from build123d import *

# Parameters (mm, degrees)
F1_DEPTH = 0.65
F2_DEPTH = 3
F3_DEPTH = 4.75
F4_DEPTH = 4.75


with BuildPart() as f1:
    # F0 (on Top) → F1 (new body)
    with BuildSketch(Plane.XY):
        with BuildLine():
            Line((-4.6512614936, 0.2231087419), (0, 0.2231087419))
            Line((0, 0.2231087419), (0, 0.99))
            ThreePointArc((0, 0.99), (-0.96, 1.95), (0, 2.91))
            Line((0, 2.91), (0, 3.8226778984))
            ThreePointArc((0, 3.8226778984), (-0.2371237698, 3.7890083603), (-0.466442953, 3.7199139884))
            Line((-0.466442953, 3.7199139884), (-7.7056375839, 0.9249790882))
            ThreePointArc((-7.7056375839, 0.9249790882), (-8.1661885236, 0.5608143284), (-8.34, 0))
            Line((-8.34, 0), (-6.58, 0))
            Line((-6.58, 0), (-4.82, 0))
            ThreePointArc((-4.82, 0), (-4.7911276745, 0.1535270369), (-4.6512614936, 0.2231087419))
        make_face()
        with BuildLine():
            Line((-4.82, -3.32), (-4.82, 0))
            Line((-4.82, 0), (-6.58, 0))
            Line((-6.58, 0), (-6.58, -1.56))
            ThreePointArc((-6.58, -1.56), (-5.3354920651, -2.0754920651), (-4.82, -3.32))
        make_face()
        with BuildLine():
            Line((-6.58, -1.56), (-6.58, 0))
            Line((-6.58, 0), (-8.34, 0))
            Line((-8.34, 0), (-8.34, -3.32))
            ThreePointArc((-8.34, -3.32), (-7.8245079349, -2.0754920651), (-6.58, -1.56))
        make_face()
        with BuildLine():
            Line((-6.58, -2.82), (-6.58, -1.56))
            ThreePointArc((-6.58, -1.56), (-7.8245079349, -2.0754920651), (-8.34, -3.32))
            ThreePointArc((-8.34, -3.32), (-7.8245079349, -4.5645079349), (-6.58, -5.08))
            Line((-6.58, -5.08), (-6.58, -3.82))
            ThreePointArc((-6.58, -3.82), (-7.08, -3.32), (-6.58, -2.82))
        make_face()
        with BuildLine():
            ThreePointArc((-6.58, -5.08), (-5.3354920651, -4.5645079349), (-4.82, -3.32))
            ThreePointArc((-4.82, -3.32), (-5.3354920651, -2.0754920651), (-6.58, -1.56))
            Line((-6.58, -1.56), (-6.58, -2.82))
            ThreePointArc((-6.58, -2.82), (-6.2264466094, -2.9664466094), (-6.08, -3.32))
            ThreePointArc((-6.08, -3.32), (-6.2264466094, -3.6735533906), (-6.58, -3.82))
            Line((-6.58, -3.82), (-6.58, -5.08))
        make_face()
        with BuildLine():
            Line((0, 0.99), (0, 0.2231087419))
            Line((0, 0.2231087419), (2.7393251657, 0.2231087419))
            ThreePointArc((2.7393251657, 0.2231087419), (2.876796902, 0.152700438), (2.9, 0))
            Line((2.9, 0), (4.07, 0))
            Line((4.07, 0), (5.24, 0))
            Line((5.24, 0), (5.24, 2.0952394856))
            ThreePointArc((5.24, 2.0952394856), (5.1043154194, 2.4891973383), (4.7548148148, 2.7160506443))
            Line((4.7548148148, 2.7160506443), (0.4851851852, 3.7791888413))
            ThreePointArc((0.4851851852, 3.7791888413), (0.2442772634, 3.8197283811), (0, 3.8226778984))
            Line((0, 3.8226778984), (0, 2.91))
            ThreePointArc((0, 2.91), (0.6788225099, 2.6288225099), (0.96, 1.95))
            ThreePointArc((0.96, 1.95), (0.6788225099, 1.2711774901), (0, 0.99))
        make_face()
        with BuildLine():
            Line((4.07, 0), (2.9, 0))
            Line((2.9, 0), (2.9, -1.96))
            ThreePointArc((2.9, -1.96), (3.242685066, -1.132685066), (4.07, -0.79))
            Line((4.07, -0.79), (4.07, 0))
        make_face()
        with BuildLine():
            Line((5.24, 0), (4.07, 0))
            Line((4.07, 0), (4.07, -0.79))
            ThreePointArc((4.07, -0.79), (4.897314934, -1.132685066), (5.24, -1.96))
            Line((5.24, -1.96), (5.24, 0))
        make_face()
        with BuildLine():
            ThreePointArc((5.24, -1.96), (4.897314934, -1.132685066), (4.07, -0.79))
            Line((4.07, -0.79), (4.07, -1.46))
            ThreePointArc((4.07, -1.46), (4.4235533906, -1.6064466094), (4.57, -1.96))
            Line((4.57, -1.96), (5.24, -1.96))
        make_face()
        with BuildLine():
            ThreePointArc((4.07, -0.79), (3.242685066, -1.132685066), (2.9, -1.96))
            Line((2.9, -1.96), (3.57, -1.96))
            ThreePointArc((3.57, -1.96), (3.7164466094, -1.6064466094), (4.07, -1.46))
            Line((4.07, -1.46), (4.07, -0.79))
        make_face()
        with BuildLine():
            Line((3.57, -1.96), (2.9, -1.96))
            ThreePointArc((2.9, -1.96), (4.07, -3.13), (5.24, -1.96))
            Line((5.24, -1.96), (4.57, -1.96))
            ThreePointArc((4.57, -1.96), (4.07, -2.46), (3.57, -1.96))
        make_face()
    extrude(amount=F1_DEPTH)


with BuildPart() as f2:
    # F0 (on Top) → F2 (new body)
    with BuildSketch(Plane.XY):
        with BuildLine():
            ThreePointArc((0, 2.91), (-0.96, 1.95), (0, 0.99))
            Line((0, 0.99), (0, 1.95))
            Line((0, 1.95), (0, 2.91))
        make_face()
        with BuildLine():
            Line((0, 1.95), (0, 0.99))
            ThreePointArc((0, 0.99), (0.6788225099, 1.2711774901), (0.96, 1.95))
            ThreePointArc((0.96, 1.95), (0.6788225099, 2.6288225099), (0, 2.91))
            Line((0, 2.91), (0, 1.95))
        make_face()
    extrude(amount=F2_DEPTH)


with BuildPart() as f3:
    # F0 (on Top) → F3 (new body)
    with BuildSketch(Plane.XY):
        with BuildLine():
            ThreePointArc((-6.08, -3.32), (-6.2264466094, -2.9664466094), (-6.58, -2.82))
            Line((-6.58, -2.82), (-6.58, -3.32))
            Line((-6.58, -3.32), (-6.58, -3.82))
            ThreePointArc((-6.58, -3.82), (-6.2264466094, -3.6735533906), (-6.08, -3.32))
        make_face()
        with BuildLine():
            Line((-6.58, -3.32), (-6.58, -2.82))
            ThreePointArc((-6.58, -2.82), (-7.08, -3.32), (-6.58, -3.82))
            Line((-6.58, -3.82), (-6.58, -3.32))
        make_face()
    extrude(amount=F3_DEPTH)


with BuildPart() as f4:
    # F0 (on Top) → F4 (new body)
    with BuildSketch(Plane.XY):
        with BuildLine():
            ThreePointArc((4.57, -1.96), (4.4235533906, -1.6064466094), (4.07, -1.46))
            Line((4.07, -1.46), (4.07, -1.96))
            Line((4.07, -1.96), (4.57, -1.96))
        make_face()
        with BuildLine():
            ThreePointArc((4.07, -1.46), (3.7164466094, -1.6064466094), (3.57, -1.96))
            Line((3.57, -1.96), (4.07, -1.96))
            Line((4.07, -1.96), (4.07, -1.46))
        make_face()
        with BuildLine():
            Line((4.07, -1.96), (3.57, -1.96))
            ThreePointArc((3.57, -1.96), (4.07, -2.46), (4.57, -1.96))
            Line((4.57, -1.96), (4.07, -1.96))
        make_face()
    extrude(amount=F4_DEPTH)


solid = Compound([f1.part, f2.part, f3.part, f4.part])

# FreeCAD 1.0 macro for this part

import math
import FreeCAD as App
import Part
import Sketcher
from FreeCAD import Vector
Q = App.Units.Quantity

doc = App.newDocument("Part")
body = doc.addObject("PartDesign::Body", "Body")

# Sketch on XY plane
sketch1 = doc.addObject("Sketcher::SketchObject", "Sketch")
body.addObject(sketch1)
sketch1.AttachmentSupport = (doc.XY_Plane, [""])
sketch1.MapMode = "FlatFace"
sketch1.addGeometry([
    Part.LineSegment(Vector(-4.651261, 0.223109, 0), Vector(2.739325, 0.223109, 0)),  # 0
    Part.ArcOfCircle(Part.Circle(Vector(2.739325, 0.053698, 0), Vector(0, 0, 1), 0.16941), math.radians(-18.479866), math.radians(90)),  # 1
    Part.LineSegment(Vector(2.9, 0, 0), Vector(2.9, -1.96, 0)),  # 2
    Part.ArcOfCircle(Part.Circle(Vector(4.07, -1.96, 0), Vector(0, 0, 1), 1.17), math.radians(180), math.radians(360)),  # 3
    Part.LineSegment(Vector(5.24, -1.96, 0), Vector(5.24, 2.095239, 0)),  # 4
    Part.ArcOfCircle(Part.Circle(Vector(4.600233, 2.095239, 0), Vector(0, 0, 1), 0.639767), math.radians(0), math.radians(76.017689)),  # 5
    Part.LineSegment(Vector(4.754815, 2.716051, 0), Vector(0.485185, 3.779189, 0)),  # 6
    Part.ArcOfCircle(Part.Circle(Vector(0.103103, 2.244725, 0), Vector(0, 0, 1), 1.581318), math.radians(76.017689), math.radians(93.738394)),  # 7
    Part.ArcOfCircle(Part.Circle(Vector(0.103103, 2.244725, 0), Vector(0, 0, 1), 1.581318), math.radians(93.738394), math.radians(111.110761)),  # 8
    Part.LineSegment(Vector(-0.466443, 3.719914, 0), Vector(-7.705638, 0.924979, 0)),  # 9
    Part.ArcOfCircle(Part.Circle(Vector(-7.348542, 0.000062, 0), Vector(0, 0, 1), 0.991458), math.radians(111.110761), math.radians(180.003589)),  # 10
    Part.LineSegment(Vector(-8.34, 0, 0), Vector(-8.34, -3.32, 0)),  # 11
    Part.ArcOfCircle(Part.Circle(Vector(-6.58, -3.32, 0), Vector(0, 0, 1), 1.76), math.radians(180), math.radians(270)),  # 12
    Part.ArcOfCircle(Part.Circle(Vector(-6.58, -3.32, 0), Vector(0, 0, 1), 1.76), math.radians(-90), math.radians(0)),  # 13
    Part.LineSegment(Vector(-4.82, -3.32, 0), Vector(-4.82, 0, 0)),  # 14
    Part.ArcOfCircle(Part.Circle(Vector(-4.651261, 0.047745, 0), Vector(0, 0, 1), 0.175363), math.radians(90), math.radians(195.799121)),  # 15
    Part.ArcOfCircle(Part.Circle(Vector(4.07, -1.96, 0), Vector(0, 0, 1), 0.5), math.radians(90), math.radians(180)),  # 16
    Part.ArcOfCircle(Part.Circle(Vector(4.07, -1.96, 0), Vector(0, 0, 1), 0.5), math.radians(0), math.radians(90)),  # 17
    Part.ArcOfCircle(Part.Circle(Vector(4.07, -1.96, 0), Vector(0, 0, 1), 0.5), math.radians(180), math.radians(360)),  # 18
    Part.ArcOfCircle(Part.Circle(Vector(0, 1.95, 0), Vector(0, 0, 1), 0.96), math.radians(90), math.radians(270)),  # 19
    Part.ArcOfCircle(Part.Circle(Vector(0, 1.95, 0), Vector(0, 0, 1), 0.96), math.radians(0), math.radians(90)),  # 20
    Part.ArcOfCircle(Part.Circle(Vector(0, 1.95, 0), Vector(0, 0, 1), 0.96), math.radians(-90), math.radians(0)),  # 21
    Part.ArcOfCircle(Part.Circle(Vector(-6.58, -3.32, 0), Vector(0, 0, 1), 0.5), math.radians(90), math.radians(270)),  # 22
    Part.ArcOfCircle(Part.Circle(Vector(-6.58, -3.32, 0), Vector(0, 0, 1), 0.5), math.radians(0), math.radians(90)),  # 23
    Part.ArcOfCircle(Part.Circle(Vector(-6.58, -3.32, 0), Vector(0, 0, 1), 0.5), math.radians(-90), math.radians(0)),  # 24
], False)
sketch1.addConstraint([
    Sketcher.Constraint("Coincident", 0, 2, 1, 2),
    Sketcher.Constraint("Coincident", 1, 1, 2, 1),
    Sketcher.Constraint("Coincident", 2, 2, 3, 1),
    Sketcher.Constraint("Coincident", 3, 2, 4, 1),
    Sketcher.Constraint("Coincident", 4, 2, 5, 1),
    Sketcher.Constraint("Coincident", 5, 2, 6, 1),
    Sketcher.Constraint("Coincident", 6, 2, 7, 1),
    Sketcher.Constraint("Coincident", 7, 2, 8, 1),
    Sketcher.Constraint("Coincident", 8, 2, 9, 1),
    Sketcher.Constraint("Coincident", 9, 2, 10, 1),
    Sketcher.Constraint("Coincident", 10, 2, 11, 1),
    Sketcher.Constraint("Coincident", 11, 2, 12, 1),
    Sketcher.Constraint("Coincident", 12, 2, 13, 1),
    Sketcher.Constraint("Coincident", 13, 2, 14, 1),
    Sketcher.Constraint("Coincident", 14, 2, 15, 2),
    Sketcher.Constraint("Coincident", 15, 1, 0, 1),
    Sketcher.Constraint("Coincident", 16, 1, 17, 2),
    Sketcher.Constraint("Coincident", 17, 1, 18, 2),
    Sketcher.Constraint("Coincident", 18, 1, 16, 2),
    Sketcher.Constraint("Coincident", 19, 1, 20, 2),
    Sketcher.Constraint("Coincident", 20, 1, 21, 2),
    Sketcher.Constraint("Coincident", 21, 1, 19, 2),
    Sketcher.Constraint("Coincident", 22, 1, 23, 2),
    Sketcher.Constraint("Coincident", 23, 1, 24, 2),
    Sketcher.Constraint("Coincident", 24, 1, 22, 2),
    Sketcher.Constraint("Horizontal", 0),
    Sketcher.Constraint("Vertical", 2),
    Sketcher.Constraint("Vertical", 4),
    Sketcher.Constraint("Vertical", 11),
    Sketcher.Constraint("Vertical", 14),
    Sketcher.Constraint("Coincident", 8, 3, 7, 3),
    Sketcher.Constraint("Coincident", 13, 3, 12, 3),
    Sketcher.Constraint("Coincident", 16, 3, 3, 3),
    Sketcher.Constraint("Coincident", 17, 3, 3, 3),
    Sketcher.Constraint("Coincident", 20, 3, 19, 3),
    Sketcher.Constraint("Coincident", 22, 3, 12, 3),
    Sketcher.Constraint("Coincident", 23, 3, 12, 3),
    Sketcher.Constraint("PointOnObject", 19, 3, -2),
    Sketcher.Constraint("PointOnObject", 21, 3, -2),
    Sketcher.Constraint("PointOnObject", 1, 1, -1),
    Sketcher.Constraint("PointOnObject", 7, 2, -2),
    Sketcher.Constraint("PointOnObject", 10, 2, -1),
    Sketcher.Constraint("PointOnObject", 14, 2, -1),
    Sketcher.Constraint("PointOnObject", 19, 1, -2),
    Sketcher.Constraint("PointOnObject", 21, 1, -2),
    Sketcher.Constraint("Radius", 16, Q("0.5 mm")),
    Sketcher.Constraint("Radius", 22, Q("0.5 mm")),
    Sketcher.Constraint("Radius", 24, Q("0.5 mm")),
    Sketcher.Constraint("Radius", 3, Q("1.17 mm")),
    Sketcher.Constraint("Radius", 12, Q("1.76 mm")),
    Sketcher.Constraint("Radius", 19, Q("0.96 mm")),
    Sketcher.Constraint("Distance", 6, Q("4.4 mm")),
    Sketcher.Constraint("DistanceY", 2, 2, 2, 1, Q("1.96 mm")),
    Sketcher.Constraint("DistanceY", 11, 2, 11, 1, Q("3.32 mm")),
    Sketcher.Constraint("DistanceY", 14, 1, 14, 2, Q("3.32 mm")),
    Sketcher.Constraint("DistanceX", -1, 1, 1, 1, Q("2.9 mm")),
    Sketcher.Constraint("DistanceY", 18, 3, 16, 1, Q("0.5 mm")),
    Sketcher.Constraint("DistanceY", 3, 2, 16, 1, Q("0.5 mm")),
    Sketcher.Constraint("Distance", 9, Q("7.76 mm")),
    Sketcher.Constraint("DistanceY", 3, 3, -1, 1, Q("1.96 mm")),
    Sketcher.Constraint("DistanceX", 12, 3, -1, 1, Q("6.58 mm")),
    Sketcher.Constraint("DistanceY", 12, 3, -1, 1, Q("3.32 mm")),
    Sketcher.Constraint("DistanceY", -1, 1, 19, 3, Q("1.95 mm")),
    Sketcher.Constraint("DistanceX", 12, 2, -1, 1, Q("6.58 mm")),
    Sketcher.Constraint("DistanceX", -1, 1, 16, 1, Q("4.07 mm")),
    Sketcher.Constraint("DistanceY", 17, 1, -1, 1, Q("1.96 mm")),
    Sketcher.Constraint("DistanceY", 18, 1, -1, 1, Q("1.96 mm")),
    Sketcher.Constraint("DistanceY", -1, 1, 20, 1, Q("1.95 mm")),
    Sketcher.Constraint("DistanceX", 22, 1, -1, 1, Q("6.58 mm")),
    Sketcher.Constraint("DistanceY", 23, 1, -1, 1, Q("3.32 mm")),
    Sketcher.Constraint("DistanceX", 24, 1, -1, 1, Q("6.58 mm")),
    Sketcher.Constraint("Radius", 1, Q("0.16941 mm")),
    Sketcher.Constraint("Radius", 5, Q("0.639767 mm")),
    Sketcher.Constraint("Radius", 7, Q("1.581318 mm")),
    Sketcher.Constraint("Radius", 10, Q("0.991458 mm")),
    Sketcher.Constraint("Radius", 15, Q("0.175363 mm")),
    Sketcher.Constraint("DistanceY", 4, 1, 4, 2, Q("4.055239 mm")),
    Sketcher.Constraint("DistanceY", -1, 1, 1, 3, Q("0.053698 mm")),
    Sketcher.Constraint("DistanceX", 0, 1, 0, 2, Q("7.390587 mm")),
    Sketcher.Constraint("DistanceY", -1, 1, 5, 3, Q("2.095239 mm")),
    Sketcher.Constraint("DistanceY", -1, 1, 5, 2, Q("2.716051 mm")),
    Sketcher.Constraint("DistanceY", -1, 1, 6, 2, Q("3.779189 mm")),
    Sketcher.Constraint("DistanceY", -1, 1, 9, 2, Q("0.924979 mm")),
    Sketcher.Constraint("DistanceX", 15, 1, -1, 1, Q("4.651261 mm")),
    Sketcher.Constraint("DistanceX", 7, 3, 1, 3, Q("2.636222 mm")),
    Sketcher.Constraint("DistanceX", 8, 2, 6, 2, Q("0.951628 mm")),
])
pad1 = doc.addObject("PartDesign::Pad", "Pad")
body.addObject(pad1)
pad1.Profile = sketch1
pad1.Length = 0.65
body2 = doc.addObject("PartDesign::Body", "Body001")

# Sketch on XY plane
sketch2 = doc.addObject("Sketcher::SketchObject", "Sketch001")
body2.addObject(sketch2)
sketch2.AttachmentSupport = (doc.getObject("XY_Plane001"), [""])
sketch2.MapMode = "FlatFace"
sketch2.addGeometry([
    Part.ArcOfCircle(Part.Circle(Vector(0, 1.9, 0), Vector(0, 0, 1), 1), math.radians(90), math.radians(270)),
    Part.ArcOfCircle(Part.Circle(Vector(0, 1.9, 0), Vector(0, 0, 1), 1), math.radians(-90), math.radians(0)),
    Part.ArcOfCircle(Part.Circle(Vector(0, 1.9, 0), Vector(0, 0, 1), 1), math.radians(0), math.radians(90)),
], False)
sketch2.addConstraint([
    Sketcher.Constraint("Tangent", 0, 2, 1, 1),
    Sketcher.Constraint("Tangent", 1, 2, 2, 1),
    Sketcher.Constraint("Tangent", 2, 2, 0, 1),
    Sketcher.Constraint("PointOnObject", 0, 3, -2),
    Sketcher.Constraint("PointOnObject", 0, 2, -2),
    Sketcher.Constraint("PointOnObject", 2, 2, -2),
    Sketcher.Constraint("Horizontal", 2, 3, 1, 2),
    Sketcher.Constraint("Radius", 0, Q("0.96 mm")),
    Sketcher.Constraint("DistanceY", -1, 1, 0, 3, Q("1.95 mm")),
])
pad2 = doc.addObject("PartDesign::Pad", "Pad001")
body2.addObject(pad2)
pad2.Profile = sketch2
pad2.Length = 3
body3 = doc.addObject("PartDesign::Body", "Body002")

# Sketch on XY plane
sketch3 = doc.addObject("Sketcher::SketchObject", "Sketch002")
body3.addObject(sketch3)
sketch3.AttachmentSupport = (doc.getObject("XY_Plane002"), [""])
sketch3.MapMode = "FlatFace"
sketch3.addGeometry([
    Part.ArcOfCircle(Part.Circle(Vector(-6.6, -3.3, 0), Vector(0, 0, 1), 0.5), math.radians(0), math.radians(90)),
    Part.ArcOfCircle(Part.Circle(Vector(-6.6, -3.3, 0), Vector(0, 0, 1), 0.5), math.radians(90), math.radians(270)),
    Part.ArcOfCircle(Part.Circle(Vector(-6.6, -3.3, 0), Vector(0, 0, 1), 0.5), math.radians(-90), math.radians(0)),
], False)
sketch3.addConstraint([
    Sketcher.Constraint("Tangent", 0, 2, 1, 1),
    Sketcher.Constraint("Tangent", 1, 2, 2, 1),
    Sketcher.Constraint("Tangent", 2, 2, 0, 1),
    Sketcher.Constraint("Horizontal", 1, 3, 2, 2),
    Sketcher.Constraint("Vertical", 2, 3, 0, 2),
    Sketcher.Constraint("Vertical", 0, 2, 1, 2),
    Sketcher.Constraint("Radius", 0, Q("0.5 mm")),
    Sketcher.Constraint("DistanceX", 0, 3, -1, 1, Q("6.58 mm")),
    Sketcher.Constraint("DistanceY", 0, 3, -1, 1, Q("3.32 mm")),
])
pad3 = doc.addObject("PartDesign::Pad", "Pad002")
body3.addObject(pad3)
pad3.Profile = sketch3
pad3.Length = 4.75
body4 = doc.addObject("PartDesign::Body", "Body003")

# Sketch on XY plane
sketch4 = doc.addObject("Sketcher::SketchObject", "Sketch003")
body4.addObject(sketch4)
sketch4.AttachmentSupport = (doc.getObject("XY_Plane003"), [""])
sketch4.MapMode = "FlatFace"
sketch4.addGeometry([
    Part.ArcOfCircle(Part.Circle(Vector(4.1, -2, 0), Vector(0, 0, 1), 0.5), math.radians(0), math.radians(90)),
    Part.ArcOfCircle(Part.Circle(Vector(4.1, -2, 0), Vector(0, 0, 1), 0.5), math.radians(90), math.radians(180)),
    Part.ArcOfCircle(Part.Circle(Vector(4.1, -2, 0), Vector(0, 0, 1), 0.5), math.radians(180), math.radians(360)),
], False)
sketch4.addConstraint([
    Sketcher.Constraint("Tangent", 0, 2, 1, 1),
    Sketcher.Constraint("Tangent", 1, 2, 2, 1),
    Sketcher.Constraint("Tangent", 2, 2, 0, 1),
    Sketcher.Constraint("Horizontal", 2, 3, 1, 2),
    Sketcher.Constraint("Horizontal", 1, 2, 2, 2),
    Sketcher.Constraint("Vertical", 2, 3, 0, 2),
    Sketcher.Constraint("Radius", 0, Q("0.5 mm")),
    Sketcher.Constraint("DistanceX", -1, 1, 0, 3, Q("4.07 mm")),
    Sketcher.Constraint("DistanceY", 0, 3, -1, 1, Q("1.96 mm")),
])
pad4 = doc.addObject("PartDesign::Pad", "Pad003")
body4.addObject(pad4)
pad4.Profile = sketch4
pad4.Length = 4.75

doc.recompute()
